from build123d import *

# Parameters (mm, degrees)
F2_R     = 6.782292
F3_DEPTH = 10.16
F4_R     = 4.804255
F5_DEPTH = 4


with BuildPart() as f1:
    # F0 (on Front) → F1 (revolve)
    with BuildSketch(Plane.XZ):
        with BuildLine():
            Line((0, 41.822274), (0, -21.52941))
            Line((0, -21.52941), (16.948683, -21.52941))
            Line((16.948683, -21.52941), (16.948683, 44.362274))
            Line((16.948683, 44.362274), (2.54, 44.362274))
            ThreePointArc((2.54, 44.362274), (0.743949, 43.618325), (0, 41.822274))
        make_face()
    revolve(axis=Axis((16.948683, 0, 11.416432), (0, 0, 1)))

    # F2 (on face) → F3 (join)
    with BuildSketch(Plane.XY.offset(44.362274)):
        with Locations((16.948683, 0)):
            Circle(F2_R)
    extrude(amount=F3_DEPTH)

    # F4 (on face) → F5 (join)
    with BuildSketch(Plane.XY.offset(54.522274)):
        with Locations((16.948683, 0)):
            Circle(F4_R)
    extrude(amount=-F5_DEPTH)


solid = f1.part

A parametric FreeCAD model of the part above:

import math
import FreeCAD as App
import Part
import Sketcher
Q = App.Units.Quantity

doc = App.newDocument("Part")
body = doc.addObject("PartDesign::Body", "Body")

# Sketch on XZ plane
sketch1 = body.newObject("Sketcher::SketchObject", "Sketch")
sketch1.AttachmentSupport = (doc.getObject("XZ_Plane"), [""])
sketch1.MapMode = "FlatFace"
sketch1.addGeometry([
    Part.LineSegment(App.Vector(0, 41.822274, 0), App.Vector(0, -21.52941, 0)),  # 0
    Part.LineSegment(App.Vector(0, -21.52941, 0), App.Vector(16.948683, -21.52941, 0)),  # 1
    Part.LineSegment(App.Vector(16.948683, -21.52941, 0), App.Vector(16.948683, 44.362274, 0)),  # 2
    Part.LineSegment(App.Vector(16.948683, 44.362274, 0), App.Vector(2.54, 44.362274, 0)),  # 3
    Part.ArcOfCircle(Part.Circle(App.Vector(2.540001, 41.822273, 0), App.Vector(0, 0, 1), 2.540001), math.radians(90.000017), math.radians(179.999983)),  # 4
], False)
sketch1.addGeometry(Part.LineSegment(App.Vector(16.948683, -21.52941, 0), App.Vector(16.948683, 44.362274, 0)), True)  # axis
sketch1.addConstraint([
    Sketcher.Constraint("Coincident", 0, 2, 1, 1),
    Sketcher.Constraint("Coincident", 1, 2, 2, 1),
    Sketcher.Constraint("Coincident", 2, 2, 3, 1),
    Sketcher.Constraint("Tangent", 3, 2, 4, 1),
    Sketcher.Constraint("Tangent", 4, 2, 0, 1),
    Sketcher.Constraint("Vertical", 0),
    Sketcher.Constraint("Horizontal", 1),
    Sketcher.Constraint("Vertical", 2),
    Sketcher.Constraint("Horizontal", 3),
    Sketcher.Constraint("Vertical", 5),
    Sketcher.Constraint("Coincident", 5, 1, 1, 2),
    Sketcher.Constraint("PointOnObject", 0, 2, -2),
    Sketcher.Constraint("Horizontal", 3, 2, 5, 2),
    Sketcher.Constraint("Radius", 4, Q("0.1 in")),
    Sketcher.Constraint("DistanceX", 1, 1, 1, 2, Q("16.948683 mm")),
    Sketcher.Constraint("DistanceY", 0, 2, 0, 1, Q("63.351684 mm")),
    Sketcher.Constraint("DistanceY", 0, 2, -1, 1, Q("21.52941 mm")),
])
revolution = body.newObject("PartDesign::Revolution", "Revolution")
revolution.Profile = sketch1
revolution.ReferenceAxis = (sketch1, ["Axis0"])
revolution.Angle = 360

# Sketch on XY plane
sketch2 = body.newObject("Sketcher::SketchObject", "Sketch001")
sketch2.AttachmentSupport = (doc.getObject("XY_Plane"), [""])
sketch2.MapMode = "FlatFace"
sketch2.AttachmentOffset = App.Placement(App.Vector(0, 0, 44.362274), App.Rotation())
sketch2.addGeometry(Part.Circle(App.Vector(16.948683, 0, 0), App.Vector(0, 0, 1), 6.782292), False)
sketch2.addConstraint([
    Sketcher.Constraint("PointOnObject", 0, 3, -1),
    Sketcher.Constraint("Diameter", 0, Q("13.564584 mm")),
    Sketcher.Constraint("DistanceX", -1, 1, 0, 3, Q("16.948683 mm")),
])
pad1 = body.newObject("PartDesign::Pad", "Pad")
pad1.Profile = sketch2
pad1.Length = Q("0.4 in")

# Sketch on XY plane
sketch3 = body.newObject("Sketcher::SketchObject", "Sketch002")
sketch3.AttachmentSupport = (doc.getObject("XY_Plane"), [""])
sketch3.MapMode = "FlatFace"
sketch3.AttachmentOffset = App.Placement(App.Vector(0, 0, 54.522274), App.Rotation())
sketch3.addGeometry(Part.Circle(App.Vector(16.948683, 0, 0), App.Vector(0, 0, 1), 4.804255), False)
sketch3.addConstraint([
    Sketcher.Constraint("PointOnObject", 0, 3, -1),
    Sketcher.Constraint("Diameter", 0, Q("9.60851 mm")),
    Sketcher.Constraint("DistanceX", -1, 1, 0, 3, Q("16.948683 mm")),
])
pad2 = body.newObject("PartDesign::Pad", "Pad001")
pad2.Profile = sketch3
pad2.Length = 4
pad2.Reversed = True

doc.recompute()
